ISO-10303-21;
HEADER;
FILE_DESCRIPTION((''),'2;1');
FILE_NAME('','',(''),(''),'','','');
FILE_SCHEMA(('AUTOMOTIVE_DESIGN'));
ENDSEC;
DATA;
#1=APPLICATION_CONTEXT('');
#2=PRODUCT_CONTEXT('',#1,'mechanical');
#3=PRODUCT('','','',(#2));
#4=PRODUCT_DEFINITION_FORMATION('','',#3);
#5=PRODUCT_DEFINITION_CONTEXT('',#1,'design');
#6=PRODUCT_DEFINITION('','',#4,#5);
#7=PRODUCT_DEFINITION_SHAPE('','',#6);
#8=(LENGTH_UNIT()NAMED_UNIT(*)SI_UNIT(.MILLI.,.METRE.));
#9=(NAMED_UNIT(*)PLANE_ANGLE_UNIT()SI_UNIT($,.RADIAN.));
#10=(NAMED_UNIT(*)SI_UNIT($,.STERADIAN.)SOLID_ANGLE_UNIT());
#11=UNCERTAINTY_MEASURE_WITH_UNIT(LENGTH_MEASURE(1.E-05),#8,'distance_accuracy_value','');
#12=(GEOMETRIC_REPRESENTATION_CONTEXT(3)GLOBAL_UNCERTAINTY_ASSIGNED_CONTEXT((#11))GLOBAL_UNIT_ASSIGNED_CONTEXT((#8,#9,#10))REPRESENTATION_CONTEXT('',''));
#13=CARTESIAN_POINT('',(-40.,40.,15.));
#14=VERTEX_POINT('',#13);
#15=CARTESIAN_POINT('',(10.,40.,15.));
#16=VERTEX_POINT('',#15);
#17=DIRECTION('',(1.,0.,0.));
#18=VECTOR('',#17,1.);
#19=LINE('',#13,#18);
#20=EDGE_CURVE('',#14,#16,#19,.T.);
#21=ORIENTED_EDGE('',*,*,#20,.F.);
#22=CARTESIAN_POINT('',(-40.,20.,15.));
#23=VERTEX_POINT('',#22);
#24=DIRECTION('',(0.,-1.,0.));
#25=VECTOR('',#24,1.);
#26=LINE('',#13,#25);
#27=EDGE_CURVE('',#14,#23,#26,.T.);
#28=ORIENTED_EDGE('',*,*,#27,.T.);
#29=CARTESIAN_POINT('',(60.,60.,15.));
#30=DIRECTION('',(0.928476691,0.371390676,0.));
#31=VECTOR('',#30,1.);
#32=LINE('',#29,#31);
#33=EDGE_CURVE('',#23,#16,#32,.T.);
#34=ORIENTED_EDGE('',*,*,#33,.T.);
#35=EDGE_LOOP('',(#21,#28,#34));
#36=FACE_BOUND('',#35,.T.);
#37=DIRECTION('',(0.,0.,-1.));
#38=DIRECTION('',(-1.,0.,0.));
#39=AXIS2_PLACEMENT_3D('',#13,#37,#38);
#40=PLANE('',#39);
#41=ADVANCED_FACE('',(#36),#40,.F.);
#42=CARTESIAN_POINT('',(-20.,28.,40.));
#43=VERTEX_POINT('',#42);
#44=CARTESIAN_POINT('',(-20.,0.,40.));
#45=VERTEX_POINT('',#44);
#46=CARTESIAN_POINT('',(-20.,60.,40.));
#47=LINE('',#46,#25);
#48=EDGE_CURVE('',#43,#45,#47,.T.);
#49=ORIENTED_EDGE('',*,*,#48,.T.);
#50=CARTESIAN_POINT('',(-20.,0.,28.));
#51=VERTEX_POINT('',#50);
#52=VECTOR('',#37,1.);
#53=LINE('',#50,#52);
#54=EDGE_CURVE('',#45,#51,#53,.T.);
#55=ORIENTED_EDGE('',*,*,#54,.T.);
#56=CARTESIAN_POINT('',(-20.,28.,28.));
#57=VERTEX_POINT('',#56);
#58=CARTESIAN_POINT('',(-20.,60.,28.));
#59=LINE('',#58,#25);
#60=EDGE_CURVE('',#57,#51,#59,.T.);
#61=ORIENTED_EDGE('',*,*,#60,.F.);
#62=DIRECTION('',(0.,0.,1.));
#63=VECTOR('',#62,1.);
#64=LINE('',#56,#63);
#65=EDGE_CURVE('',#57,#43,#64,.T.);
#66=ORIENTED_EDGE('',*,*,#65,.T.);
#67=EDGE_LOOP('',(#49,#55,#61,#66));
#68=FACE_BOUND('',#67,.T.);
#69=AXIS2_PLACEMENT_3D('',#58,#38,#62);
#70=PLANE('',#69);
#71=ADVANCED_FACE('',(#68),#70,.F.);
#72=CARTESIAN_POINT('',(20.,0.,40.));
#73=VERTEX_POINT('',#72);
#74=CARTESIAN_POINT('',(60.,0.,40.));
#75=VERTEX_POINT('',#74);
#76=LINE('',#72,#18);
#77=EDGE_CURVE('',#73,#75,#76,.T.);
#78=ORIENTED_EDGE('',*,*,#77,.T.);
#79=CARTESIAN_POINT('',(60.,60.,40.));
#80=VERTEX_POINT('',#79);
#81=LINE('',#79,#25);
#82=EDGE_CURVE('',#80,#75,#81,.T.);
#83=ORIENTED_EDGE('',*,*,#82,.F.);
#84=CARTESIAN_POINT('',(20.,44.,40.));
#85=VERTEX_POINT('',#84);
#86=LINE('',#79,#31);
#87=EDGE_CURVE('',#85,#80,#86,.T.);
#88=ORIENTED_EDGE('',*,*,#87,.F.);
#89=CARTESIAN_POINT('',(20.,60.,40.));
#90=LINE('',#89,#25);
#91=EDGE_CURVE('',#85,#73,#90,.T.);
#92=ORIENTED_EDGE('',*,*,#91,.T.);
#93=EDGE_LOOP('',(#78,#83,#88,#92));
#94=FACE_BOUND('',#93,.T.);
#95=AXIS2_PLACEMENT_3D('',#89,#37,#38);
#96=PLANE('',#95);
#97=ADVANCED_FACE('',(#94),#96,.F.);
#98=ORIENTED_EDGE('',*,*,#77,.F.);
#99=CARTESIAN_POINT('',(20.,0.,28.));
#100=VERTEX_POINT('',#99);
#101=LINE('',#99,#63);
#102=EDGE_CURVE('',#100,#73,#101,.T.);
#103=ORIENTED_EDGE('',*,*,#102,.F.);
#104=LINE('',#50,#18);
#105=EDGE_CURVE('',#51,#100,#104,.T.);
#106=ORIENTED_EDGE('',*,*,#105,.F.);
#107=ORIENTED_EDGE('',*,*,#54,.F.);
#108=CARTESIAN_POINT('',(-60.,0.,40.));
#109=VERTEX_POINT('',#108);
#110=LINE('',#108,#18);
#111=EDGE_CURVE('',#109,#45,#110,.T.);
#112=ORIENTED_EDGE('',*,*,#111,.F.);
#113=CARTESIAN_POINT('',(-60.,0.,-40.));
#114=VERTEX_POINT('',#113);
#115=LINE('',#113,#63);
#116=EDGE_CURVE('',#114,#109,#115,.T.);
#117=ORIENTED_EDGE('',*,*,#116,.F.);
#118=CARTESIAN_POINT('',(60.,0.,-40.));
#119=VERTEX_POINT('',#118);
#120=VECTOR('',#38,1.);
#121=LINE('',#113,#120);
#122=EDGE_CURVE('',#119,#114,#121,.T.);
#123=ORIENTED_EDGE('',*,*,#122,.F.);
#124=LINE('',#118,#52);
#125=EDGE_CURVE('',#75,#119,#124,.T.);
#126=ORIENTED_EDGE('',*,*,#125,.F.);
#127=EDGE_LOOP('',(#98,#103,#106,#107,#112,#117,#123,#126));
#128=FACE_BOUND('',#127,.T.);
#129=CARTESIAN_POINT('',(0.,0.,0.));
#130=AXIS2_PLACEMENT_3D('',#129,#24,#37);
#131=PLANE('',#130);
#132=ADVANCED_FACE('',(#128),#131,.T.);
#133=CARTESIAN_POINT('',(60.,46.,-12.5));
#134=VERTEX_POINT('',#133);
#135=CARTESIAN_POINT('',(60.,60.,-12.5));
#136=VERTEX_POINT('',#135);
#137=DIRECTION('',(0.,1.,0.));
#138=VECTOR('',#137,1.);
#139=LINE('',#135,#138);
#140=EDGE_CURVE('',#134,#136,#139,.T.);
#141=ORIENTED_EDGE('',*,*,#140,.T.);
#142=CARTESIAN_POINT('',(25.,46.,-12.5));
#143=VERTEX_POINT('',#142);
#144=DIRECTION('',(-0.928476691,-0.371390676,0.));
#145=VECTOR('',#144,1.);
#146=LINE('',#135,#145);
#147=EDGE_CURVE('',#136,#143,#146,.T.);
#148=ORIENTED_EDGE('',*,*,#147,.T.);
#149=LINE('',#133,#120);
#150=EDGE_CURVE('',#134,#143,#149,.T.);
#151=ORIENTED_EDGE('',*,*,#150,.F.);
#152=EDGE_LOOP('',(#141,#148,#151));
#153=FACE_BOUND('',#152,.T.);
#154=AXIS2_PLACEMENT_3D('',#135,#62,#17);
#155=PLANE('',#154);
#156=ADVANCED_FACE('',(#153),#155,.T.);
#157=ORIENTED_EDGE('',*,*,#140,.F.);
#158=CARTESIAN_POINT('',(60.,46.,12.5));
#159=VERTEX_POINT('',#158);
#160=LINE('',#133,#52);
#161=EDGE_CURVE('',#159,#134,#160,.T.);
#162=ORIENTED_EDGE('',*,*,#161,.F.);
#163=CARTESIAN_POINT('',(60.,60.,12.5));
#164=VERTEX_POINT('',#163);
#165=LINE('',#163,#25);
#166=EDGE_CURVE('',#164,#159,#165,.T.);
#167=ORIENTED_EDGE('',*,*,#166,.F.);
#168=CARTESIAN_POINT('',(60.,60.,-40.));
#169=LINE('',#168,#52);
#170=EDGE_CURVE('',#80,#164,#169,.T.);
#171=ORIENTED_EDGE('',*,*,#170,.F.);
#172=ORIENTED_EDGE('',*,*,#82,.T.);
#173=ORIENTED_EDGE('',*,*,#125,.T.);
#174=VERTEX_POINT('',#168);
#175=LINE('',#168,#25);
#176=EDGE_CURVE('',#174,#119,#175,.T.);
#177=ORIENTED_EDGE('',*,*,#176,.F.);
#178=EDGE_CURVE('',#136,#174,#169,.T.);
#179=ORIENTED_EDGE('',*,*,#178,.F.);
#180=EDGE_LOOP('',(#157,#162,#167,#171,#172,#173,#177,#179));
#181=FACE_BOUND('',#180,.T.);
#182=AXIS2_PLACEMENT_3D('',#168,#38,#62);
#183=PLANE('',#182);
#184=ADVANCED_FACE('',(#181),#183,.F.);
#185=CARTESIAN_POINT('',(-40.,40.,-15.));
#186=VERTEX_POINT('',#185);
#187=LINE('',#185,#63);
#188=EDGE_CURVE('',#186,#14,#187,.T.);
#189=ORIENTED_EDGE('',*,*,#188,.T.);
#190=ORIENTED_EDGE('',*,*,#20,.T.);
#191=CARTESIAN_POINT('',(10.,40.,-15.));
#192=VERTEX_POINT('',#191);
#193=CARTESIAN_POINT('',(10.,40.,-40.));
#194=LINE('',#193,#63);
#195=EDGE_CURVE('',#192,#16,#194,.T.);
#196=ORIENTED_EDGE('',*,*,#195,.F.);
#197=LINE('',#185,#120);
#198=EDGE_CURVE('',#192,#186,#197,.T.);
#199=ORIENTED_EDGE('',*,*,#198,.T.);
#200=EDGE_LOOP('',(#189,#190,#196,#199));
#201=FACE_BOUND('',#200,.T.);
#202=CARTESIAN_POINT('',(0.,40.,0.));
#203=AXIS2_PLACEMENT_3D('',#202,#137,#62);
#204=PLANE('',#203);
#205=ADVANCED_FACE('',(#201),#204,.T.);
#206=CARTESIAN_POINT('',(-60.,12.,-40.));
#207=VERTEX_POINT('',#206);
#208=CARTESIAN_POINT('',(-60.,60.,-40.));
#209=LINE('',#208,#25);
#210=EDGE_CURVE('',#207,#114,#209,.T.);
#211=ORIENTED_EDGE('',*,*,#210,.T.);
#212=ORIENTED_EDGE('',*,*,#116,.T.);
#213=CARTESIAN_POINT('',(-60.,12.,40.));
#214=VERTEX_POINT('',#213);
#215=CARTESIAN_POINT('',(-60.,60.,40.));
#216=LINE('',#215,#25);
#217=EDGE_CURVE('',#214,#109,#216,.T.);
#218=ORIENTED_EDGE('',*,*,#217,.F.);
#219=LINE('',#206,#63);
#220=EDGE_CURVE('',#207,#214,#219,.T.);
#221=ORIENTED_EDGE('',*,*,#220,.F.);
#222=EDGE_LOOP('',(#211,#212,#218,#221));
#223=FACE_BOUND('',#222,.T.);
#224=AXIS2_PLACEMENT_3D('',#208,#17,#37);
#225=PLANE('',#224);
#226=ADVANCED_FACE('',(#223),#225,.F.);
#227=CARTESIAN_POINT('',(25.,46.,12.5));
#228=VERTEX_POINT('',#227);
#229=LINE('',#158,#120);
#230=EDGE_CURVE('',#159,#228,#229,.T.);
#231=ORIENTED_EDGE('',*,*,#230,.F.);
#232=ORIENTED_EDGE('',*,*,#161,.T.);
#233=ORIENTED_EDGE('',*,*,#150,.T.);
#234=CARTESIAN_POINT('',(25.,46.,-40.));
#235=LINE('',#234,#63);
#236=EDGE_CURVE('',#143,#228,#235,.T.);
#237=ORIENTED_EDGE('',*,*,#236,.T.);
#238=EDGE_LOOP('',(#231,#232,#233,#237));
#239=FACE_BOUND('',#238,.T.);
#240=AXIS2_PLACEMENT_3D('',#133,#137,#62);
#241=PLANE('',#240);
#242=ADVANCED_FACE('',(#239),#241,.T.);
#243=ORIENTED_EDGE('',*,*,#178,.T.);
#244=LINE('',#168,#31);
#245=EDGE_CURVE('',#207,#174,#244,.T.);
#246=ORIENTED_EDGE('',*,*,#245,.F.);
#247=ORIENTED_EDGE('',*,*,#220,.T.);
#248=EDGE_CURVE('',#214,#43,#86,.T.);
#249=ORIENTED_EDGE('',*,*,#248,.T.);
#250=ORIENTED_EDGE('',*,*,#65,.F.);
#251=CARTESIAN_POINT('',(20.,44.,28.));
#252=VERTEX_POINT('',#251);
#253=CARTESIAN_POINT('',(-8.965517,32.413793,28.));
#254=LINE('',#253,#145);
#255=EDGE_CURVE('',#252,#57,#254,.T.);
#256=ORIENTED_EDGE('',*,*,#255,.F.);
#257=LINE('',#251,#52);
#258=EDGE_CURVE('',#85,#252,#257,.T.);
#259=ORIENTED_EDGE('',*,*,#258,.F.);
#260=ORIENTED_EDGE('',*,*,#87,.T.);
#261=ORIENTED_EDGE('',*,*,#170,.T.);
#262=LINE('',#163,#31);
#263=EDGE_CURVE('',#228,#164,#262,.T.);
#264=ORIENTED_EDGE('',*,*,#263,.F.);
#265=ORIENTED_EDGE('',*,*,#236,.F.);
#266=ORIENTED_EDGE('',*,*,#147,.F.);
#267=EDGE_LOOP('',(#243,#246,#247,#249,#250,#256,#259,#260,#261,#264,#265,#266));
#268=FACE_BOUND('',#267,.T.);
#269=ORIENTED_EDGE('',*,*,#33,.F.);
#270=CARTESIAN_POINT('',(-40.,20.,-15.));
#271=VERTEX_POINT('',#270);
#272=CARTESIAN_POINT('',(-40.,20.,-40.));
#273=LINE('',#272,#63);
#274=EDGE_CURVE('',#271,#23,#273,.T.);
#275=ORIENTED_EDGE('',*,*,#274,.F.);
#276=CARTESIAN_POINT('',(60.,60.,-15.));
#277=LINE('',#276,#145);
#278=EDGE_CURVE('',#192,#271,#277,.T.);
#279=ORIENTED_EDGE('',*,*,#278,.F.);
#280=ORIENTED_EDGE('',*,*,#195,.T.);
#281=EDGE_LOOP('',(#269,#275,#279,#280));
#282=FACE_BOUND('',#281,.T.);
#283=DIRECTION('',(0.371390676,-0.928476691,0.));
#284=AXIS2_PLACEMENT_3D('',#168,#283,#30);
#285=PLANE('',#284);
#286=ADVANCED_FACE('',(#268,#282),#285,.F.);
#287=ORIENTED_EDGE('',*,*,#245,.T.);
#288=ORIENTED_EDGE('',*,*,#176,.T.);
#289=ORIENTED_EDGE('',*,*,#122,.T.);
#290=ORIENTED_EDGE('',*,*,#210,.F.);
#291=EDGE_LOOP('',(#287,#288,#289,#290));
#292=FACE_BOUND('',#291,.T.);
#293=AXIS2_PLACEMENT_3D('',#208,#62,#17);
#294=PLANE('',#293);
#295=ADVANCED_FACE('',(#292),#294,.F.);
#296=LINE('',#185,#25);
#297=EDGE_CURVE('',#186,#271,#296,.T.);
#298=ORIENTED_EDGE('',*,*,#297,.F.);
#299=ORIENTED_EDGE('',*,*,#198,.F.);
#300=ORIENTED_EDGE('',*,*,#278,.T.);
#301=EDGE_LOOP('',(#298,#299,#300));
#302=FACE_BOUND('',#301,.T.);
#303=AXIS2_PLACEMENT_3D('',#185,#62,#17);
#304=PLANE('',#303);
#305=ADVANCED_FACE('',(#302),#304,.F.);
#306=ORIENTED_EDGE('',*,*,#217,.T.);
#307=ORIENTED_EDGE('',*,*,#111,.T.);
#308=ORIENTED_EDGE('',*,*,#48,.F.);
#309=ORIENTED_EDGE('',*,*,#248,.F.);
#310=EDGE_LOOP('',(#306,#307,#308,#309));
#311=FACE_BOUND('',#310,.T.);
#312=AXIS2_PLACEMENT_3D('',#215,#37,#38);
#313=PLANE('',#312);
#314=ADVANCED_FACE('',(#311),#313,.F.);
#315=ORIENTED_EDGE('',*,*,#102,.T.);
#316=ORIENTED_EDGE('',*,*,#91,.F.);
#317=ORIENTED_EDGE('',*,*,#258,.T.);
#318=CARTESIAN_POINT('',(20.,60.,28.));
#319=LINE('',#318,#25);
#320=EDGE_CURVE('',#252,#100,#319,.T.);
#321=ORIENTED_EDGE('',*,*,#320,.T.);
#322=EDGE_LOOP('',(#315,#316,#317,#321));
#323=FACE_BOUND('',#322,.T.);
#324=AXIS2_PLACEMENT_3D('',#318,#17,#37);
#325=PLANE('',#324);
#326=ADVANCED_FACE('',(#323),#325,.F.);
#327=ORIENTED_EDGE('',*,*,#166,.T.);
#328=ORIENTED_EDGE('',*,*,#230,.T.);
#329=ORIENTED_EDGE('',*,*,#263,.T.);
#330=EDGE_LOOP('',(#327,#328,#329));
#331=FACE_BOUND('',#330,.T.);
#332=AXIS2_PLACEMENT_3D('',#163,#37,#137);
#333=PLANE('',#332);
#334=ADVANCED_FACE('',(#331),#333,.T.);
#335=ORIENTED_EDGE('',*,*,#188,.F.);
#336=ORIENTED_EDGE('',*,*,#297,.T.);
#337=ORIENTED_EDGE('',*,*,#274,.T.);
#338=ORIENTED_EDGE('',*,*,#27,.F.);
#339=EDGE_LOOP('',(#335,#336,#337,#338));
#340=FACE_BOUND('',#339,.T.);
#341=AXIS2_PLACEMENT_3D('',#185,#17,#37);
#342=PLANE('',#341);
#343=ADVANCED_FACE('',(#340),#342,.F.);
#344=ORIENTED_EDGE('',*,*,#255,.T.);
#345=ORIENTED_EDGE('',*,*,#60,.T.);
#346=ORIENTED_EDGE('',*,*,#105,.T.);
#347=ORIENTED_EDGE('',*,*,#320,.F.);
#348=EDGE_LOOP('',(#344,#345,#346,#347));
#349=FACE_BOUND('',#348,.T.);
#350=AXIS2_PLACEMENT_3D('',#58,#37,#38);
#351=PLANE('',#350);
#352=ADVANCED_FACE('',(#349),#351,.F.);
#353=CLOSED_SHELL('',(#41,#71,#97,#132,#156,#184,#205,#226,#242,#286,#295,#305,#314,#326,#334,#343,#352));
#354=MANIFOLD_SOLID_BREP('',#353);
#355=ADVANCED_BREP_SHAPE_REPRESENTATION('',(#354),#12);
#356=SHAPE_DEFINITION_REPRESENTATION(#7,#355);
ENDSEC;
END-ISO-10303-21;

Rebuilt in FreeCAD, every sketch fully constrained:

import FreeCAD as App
import Part
import Sketcher

doc = App.newDocument("Part")
body = doc.addObject("PartDesign::Body", "Body")

sketch1 = doc.addObject("Sketcher::SketchObject", "Sketch")
body.addObject(sketch1)
sketch1.AttachmentSupport = (doc.XZ_Plane, [""])
sketch1.MapMode = "FlatFace"
sketch1.addGeometry(Part.LineSegment(App.Vector(-20, 40, 0), App.Vector(-20, 28, 0)), False)
sketch1.addGeometry(Part.LineSegment(App.Vector(-20, 28, 0), App.Vector(20, 28, 0)), False)
sketch1.addGeometry(Part.LineSegment(App.Vector(20, 28, 0), App.Vector(20, 40, 0)), False)
sketch1.addGeometry(Part.LineSegment(App.Vector(20, 40, 0), App.Vector(60, 40, 0)), False)
sketch1.addGeometry(Part.LineSegment(App.Vector(60, 40, 0), App.Vector(60, -40, 0)), False)
sketch1.addGeometry(Part.LineSegment(App.Vector(60, -40, 0), App.Vector(-60, -40, 0)), False)
sketch1.addGeometry(Part.LineSegment(App.Vector(-60, -40, 0), App.Vector(-60, 40, 0)), False)
sketch1.addGeometry(Part.LineSegment(App.Vector(-60, 40, 0), App.Vector(-20, 40, 0)), False)
sketch1.addConstraint(Sketcher.Constraint("Coincident", 0, 2, 1, 1))
sketch1.addConstraint(Sketcher.Constraint("Coincident", 1, 2, 2, 1))
sketch1.addConstraint(Sketcher.Constraint("Coincident", 2, 2, 3, 1))
sketch1.addConstraint(Sketcher.Constraint("Coincident", 3, 2, 4, 1))
sketch1.addConstraint(Sketcher.Constraint("Coincident", 4, 2, 5, 1))
sketch1.addConstraint(Sketcher.Constraint("Coincident", 5, 2, 6, 1))
sketch1.addConstraint(Sketcher.Constraint("Coincident", 6, 2, 7, 1))
sketch1.addConstraint(Sketcher.Constraint("Coincident", 7, 2, 0, 1))
sketch1.addConstraint(Sketcher.Constraint("Vertical", 0))
sketch1.addConstraint(Sketcher.Constraint("Horizontal", 1))
sketch1.addConstraint(Sketcher.Constraint("Vertical", 2))
sketch1.addConstraint(Sketcher.Constraint("Horizontal", 3))
sketch1.addConstraint(Sketcher.Constraint("Vertical", 4))
sketch1.addConstraint(Sketcher.Constraint("Horizontal", 5))
sketch1.addConstraint(Sketcher.Constraint("Vertical", 6))
sketch1.addConstraint(Sketcher.Constraint("Horizontal", 7))
sketch1.addConstraint(Sketcher.Constraint("Symmetric", 3, 2, 5, 2, -1, 1))
sketch1.addConstraint(Sketcher.Constraint("Symmetric", 2, 2, 7, 2, -2))
sketch1.addConstraint(Sketcher.Constraint("Equal", 1, 3))
sketch1.addConstraint(Sketcher.Constraint("DistanceX", 1, 1, 1, 2, 40.0))
sketch1.addConstraint(Sketcher.Constraint("DistanceY", 0, 2, 0, 1, 12.0))
sketch1.addConstraint(Sketcher.Constraint("DistanceY", 4, 2, 4, 1, 80.0))
pad1 = doc.addObject("PartDesign::Pad", "Pad")
body.addObject(pad1)
pad1.Profile = sketch1
pad1.Length = 60
pad1.Reversed = True

sketch2 = doc.addObject("Sketcher::SketchObject", "Sketch001")
body.addObject(sketch2)
sketch2.AttachmentSupport = (doc.XY_Plane, [""])
sketch2.MapMode = "FlatFace"
sketch2.addGeometry(Part.LineSegment(App.Vector(-60, 12, 0), App.Vector(60, 60, 0)), False)
sketch2.addGeometry(Part.LineSegment(App.Vector(60, 60, 0), App.Vector(-60, 60, 0)), False)
sketch2.addGeometry(Part.LineSegment(App.Vector(-60, 60, 0), App.Vector(-60, 12, 0)), False)
sketch2.addConstraint(Sketcher.Constraint("Coincident", 0, 2, 1, 1))
sketch2.addConstraint(Sketcher.Constraint("Coincident", 1, 2, 2, 1))
sketch2.addConstraint(Sketcher.Constraint("Coincident", 2, 2, 0, 1))
sketch2.addConstraint(Sketcher.Constraint("Horizontal", 1))
sketch2.addConstraint(Sketcher.Constraint("Vertical", 2))
sketch2.addConstraint(Sketcher.Constraint("DistanceX", 1, 2, 1, 1, 120.0))
sketch2.addConstraint(Sketcher.Constraint("DistanceY", 2, 2, 2, 1, 48.0))
sketch2.addConstraint(Sketcher.Constraint("DistanceX", -1, 1, 0, 2, 60.0))
sketch2.addConstraint(Sketcher.Constraint("DistanceY", -1, 1, 0, 2, 60.0))
pocket1 = doc.addObject("PartDesign::Pocket", "Pocket")
body.addObject(pocket1)
pocket1.Profile = sketch2
pocket1.Length = 80
pocket1.Midplane = True

sketch3 = doc.addObject("Sketcher::SketchObject", "Sketch002")
body.addObject(sketch3)
sketch3.AttachmentSupport = (doc.XZ_Plane, [""])
sketch3.MapMode = "FlatFace"
sketch3.addGeometry(Part.LineSegment(App.Vector(-40, -15, 0), App.Vector(-40, 15, 0)), False)
sketch3.addGeometry(Part.LineSegment(App.Vector(-40, 15, 0), App.Vector(60, 15, 0)), False)
sketch3.addGeometry(Part.LineSegment(App.Vector(60, 15, 0), App.Vector(60, -15, 0)), False)
sketch3.addGeometry(Part.LineSegment(App.Vector(60, -15, 0), App.Vector(-40, -15, 0)), False)
sketch3.addConstraint(Sketcher.Constraint("Coincident", 0, 2, 1, 1))
sketch3.addConstraint(Sketcher.Constraint("Coincident", 1, 2, 2, 1))
sketch3.addConstraint(Sketcher.Constraint("Coincident", 2, 2, 3, 1))
sketch3.addConstraint(Sketcher.Constraint("Coincident", 3, 2, 0, 1))
sketch3.addConstraint(Sketcher.Constraint("Vertical", 0))
sketch3.addConstraint(Sketcher.Constraint("Horizontal", 1))
sketch3.addConstraint(Sketcher.Constraint("Vertical", 2))
sketch3.addConstraint(Sketcher.Constraint("Horizontal", 3))
sketch3.addConstraint(Sketcher.Constraint("DistanceX", 1, 1, 1, 2, 100.0))
sketch3.addConstraint(Sketcher.Constraint("DistanceY", 0, 1, 0, 2, 30.0))
sketch3.addConstraint(Sketcher.Constraint("DistanceX", 0, 2, -1, 1, 40.0))
sketch3.addConstraint(Sketcher.Constraint("DistanceY", -1, 1, 0, 2, 15.0))
pad2 = doc.addObject("PartDesign::Pad", "Pad001")
body.addObject(pad2)
pad2.Profile = sketch3
pad2.Length = 40
pad2.Reversed = True

sketch4 = doc.addObject("Sketcher::SketchObject", "Sketch003")
body.addObject(sketch4)
sketch4.AttachmentSupport = (doc.YZ_Plane, [""])
sketch4.MapMode = "FlatFace"
sketch4.addGeometry(Part.LineSegment(App.Vector(60, 12, 0), App.Vector(46, 12, 0)), False)
sketch4.addGeometry(Part.LineSegment(App.Vector(46, 12, 0), App.Vector(46, -12, 0)), False)
sketch4.addGeometry(Part.LineSegment(App.Vector(46, -12, 0), App.Vector(60, -12, 0)), False)
sketch4.addGeometry(Part.LineSegment(App.Vector(60, -12, 0), App.Vector(60, 12, 0)), False)
sketch4.addConstraint(Sketcher.Constraint("Coincident", 0, 2, 1, 1))
sketch4.addConstraint(Sketcher.Constraint("Coincident", 1, 2, 2, 1))
sketch4.addConstraint(Sketcher.Constraint("Coincident", 2, 2, 3, 1))
sketch4.addConstraint(Sketcher.Constraint("Coincident", 3, 2, 0, 1))
sketch4.addConstraint(Sketcher.Constraint("Horizontal", 0))
sketch4.addConstraint(Sketcher.Constraint("Vertical", 1))
sketch4.addConstraint(Sketcher.Constraint("Horizontal", 2))
sketch4.addConstraint(Sketcher.Constraint("Vertical", 3))
sketch4.addConstraint(Sketcher.Constraint("DistanceX", 0, 2, 0, 1, 14.0))
sketch4.addConstraint(Sketcher.Constraint("DistanceY", 1, 2, 1, 1, 25.0))
sketch4.addConstraint(Sketcher.Constraint("DistanceX", -1, 1, 0, 2, 46.0))
sketch4.addConstraint(Sketcher.Constraint("DistanceY", -1, 1, 0, 2, 12.5))
pocket2 = doc.addObject("PartDesign::Pocket", "Pocket001")
body.addObject(pocket2)
pocket2.Profile = sketch4
pocket2.Type = "ThroughAll"
pocket2.Reversed = True

doc.recompute()
